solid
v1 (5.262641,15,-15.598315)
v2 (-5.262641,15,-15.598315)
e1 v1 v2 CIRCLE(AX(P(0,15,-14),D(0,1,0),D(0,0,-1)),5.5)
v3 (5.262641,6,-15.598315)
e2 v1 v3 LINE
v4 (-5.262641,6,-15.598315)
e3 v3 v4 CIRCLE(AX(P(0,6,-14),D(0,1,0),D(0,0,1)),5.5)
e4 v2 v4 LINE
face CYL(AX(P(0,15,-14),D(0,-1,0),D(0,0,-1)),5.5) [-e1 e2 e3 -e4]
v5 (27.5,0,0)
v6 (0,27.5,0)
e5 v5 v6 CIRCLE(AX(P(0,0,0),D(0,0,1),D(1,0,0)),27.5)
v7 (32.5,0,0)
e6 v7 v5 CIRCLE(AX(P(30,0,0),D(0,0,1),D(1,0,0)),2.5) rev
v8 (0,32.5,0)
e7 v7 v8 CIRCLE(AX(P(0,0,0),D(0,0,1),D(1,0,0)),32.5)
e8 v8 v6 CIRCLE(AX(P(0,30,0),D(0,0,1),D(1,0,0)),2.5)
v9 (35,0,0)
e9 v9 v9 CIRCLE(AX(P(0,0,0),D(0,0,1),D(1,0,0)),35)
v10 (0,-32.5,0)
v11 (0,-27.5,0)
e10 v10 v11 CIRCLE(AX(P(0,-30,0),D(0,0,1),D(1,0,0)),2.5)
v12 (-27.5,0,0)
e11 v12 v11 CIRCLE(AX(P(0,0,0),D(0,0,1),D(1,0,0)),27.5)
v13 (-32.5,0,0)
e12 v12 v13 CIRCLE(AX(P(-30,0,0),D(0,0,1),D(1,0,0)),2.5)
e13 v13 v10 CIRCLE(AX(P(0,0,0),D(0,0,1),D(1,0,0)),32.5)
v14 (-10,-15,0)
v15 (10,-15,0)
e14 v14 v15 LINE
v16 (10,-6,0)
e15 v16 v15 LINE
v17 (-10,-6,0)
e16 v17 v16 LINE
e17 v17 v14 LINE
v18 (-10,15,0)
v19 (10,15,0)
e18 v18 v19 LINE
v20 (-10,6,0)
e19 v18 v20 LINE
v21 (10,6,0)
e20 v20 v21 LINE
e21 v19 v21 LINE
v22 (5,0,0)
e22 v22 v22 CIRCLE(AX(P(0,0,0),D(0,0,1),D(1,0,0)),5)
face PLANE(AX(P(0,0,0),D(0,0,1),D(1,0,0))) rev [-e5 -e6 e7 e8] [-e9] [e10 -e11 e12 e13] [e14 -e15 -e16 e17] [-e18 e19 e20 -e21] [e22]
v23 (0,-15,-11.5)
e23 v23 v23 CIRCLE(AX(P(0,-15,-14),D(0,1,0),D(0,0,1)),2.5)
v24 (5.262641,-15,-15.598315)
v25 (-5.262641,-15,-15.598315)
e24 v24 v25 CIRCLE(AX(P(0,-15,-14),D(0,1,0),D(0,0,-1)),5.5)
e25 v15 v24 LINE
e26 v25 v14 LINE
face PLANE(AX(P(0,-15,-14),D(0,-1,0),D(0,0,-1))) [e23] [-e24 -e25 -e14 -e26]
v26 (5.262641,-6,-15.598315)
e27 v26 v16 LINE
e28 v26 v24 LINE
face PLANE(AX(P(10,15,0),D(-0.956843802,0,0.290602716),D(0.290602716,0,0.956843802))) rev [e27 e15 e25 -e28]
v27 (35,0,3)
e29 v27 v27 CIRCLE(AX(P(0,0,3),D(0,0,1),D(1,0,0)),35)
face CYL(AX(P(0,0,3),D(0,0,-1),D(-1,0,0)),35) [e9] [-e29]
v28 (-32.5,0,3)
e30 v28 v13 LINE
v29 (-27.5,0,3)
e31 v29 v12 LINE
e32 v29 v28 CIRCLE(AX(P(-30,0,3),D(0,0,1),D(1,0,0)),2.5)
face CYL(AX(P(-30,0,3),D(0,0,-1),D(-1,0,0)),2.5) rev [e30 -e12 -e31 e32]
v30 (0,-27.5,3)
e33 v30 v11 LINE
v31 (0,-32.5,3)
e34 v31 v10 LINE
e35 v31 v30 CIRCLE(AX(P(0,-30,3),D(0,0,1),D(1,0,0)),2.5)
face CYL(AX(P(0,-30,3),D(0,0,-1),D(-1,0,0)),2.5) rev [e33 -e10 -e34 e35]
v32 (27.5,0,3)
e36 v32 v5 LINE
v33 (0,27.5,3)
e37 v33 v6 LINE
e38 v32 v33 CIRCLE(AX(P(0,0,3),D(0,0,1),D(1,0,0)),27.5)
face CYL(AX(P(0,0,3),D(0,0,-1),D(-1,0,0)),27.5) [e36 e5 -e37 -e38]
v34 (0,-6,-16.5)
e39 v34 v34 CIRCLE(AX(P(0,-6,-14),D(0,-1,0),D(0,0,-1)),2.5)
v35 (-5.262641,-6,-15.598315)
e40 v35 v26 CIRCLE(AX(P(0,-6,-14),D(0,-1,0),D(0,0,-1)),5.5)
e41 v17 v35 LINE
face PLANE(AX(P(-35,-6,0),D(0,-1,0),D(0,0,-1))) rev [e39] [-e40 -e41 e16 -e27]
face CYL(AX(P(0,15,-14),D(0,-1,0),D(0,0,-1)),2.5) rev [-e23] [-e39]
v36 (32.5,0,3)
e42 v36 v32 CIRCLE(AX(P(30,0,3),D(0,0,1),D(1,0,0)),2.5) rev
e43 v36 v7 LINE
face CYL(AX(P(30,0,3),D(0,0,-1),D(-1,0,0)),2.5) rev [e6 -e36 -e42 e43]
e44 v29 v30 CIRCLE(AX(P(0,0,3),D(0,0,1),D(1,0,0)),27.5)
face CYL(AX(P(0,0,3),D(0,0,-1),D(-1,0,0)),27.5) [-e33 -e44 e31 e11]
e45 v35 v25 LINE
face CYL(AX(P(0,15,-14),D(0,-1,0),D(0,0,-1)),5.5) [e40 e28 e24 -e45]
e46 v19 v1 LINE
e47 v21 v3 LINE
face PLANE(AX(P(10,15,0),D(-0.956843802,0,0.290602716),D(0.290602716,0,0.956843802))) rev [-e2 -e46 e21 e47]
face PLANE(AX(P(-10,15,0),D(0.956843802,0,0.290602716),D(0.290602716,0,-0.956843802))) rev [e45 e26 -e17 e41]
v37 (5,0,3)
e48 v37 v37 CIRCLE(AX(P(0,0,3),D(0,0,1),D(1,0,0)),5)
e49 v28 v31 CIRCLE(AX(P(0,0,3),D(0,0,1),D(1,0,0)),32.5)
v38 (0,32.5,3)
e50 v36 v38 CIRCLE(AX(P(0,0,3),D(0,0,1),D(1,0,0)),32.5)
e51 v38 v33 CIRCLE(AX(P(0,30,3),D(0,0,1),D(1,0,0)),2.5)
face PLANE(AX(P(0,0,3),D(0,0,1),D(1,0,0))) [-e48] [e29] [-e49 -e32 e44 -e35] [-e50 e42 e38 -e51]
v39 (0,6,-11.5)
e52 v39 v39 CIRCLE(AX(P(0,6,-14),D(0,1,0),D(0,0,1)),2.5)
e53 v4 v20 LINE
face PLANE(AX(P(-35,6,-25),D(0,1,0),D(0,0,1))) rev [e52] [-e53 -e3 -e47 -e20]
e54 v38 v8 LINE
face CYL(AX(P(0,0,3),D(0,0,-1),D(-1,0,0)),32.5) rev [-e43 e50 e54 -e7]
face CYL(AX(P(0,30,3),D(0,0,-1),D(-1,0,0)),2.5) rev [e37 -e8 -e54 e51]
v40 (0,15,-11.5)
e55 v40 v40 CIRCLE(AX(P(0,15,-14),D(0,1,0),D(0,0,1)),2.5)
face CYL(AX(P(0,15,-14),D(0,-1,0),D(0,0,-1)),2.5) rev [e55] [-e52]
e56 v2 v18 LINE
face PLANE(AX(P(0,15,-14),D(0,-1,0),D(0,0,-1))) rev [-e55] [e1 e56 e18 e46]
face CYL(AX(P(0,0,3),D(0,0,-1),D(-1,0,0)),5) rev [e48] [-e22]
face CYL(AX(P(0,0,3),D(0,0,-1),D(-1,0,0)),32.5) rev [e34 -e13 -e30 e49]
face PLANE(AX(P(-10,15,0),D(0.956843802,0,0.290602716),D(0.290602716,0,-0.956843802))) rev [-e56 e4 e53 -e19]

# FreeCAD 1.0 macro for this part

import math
import FreeCAD as App
import Part
import Sketcher
Q = App.Units.Quantity

doc = App.newDocument("Part")
params = doc.addObject("Spreadsheet::Sheet", "Params")
for row, (alias, value) in enumerate([
    ("sketch1_diameter", "5 mm"),
    ("sketch1_radius", "5.5 mm"),
    ("sketch1_width", "20 mm"),
    ("pad1_length", "30 mm"),
    ("sketch2_diameter", "70 mm"),
    ("sketch2_diameter2", "10 mm"),
    ("sketch2_radius", "27.5 mm"),
    ("sketch2_radius2", "2.5 mm"),
    ("pad2_length", "3 mm"),
    ("sketch3_width", "12 mm"),
    ("sketch3_height", "25 mm"),
], start=1):
    params.set(f"A{row}", alias)
    params.set(f"B{row}", "=" + value)
    params.setAlias(f"B{row}", alias)

body = doc.addObject("PartDesign::Body", "Body")

sketch1 = doc.addObject("Sketcher::SketchObject", "Sketch")
body.addObject(sketch1)
sketch1.AttachmentSupport = (doc.XZ_Plane, [""])
sketch1.MapMode = "FlatFace"
sketch1.addGeometry(Part.LineSegment(App.Vector(-10, 0, 0), App.Vector(10, 0, 0)), False)
sketch1.addGeometry(Part.LineSegment(App.Vector(10, 0, 0), App.Vector(5.3, -15.6, 0)), False)
sketch1.addGeometry(Part.ArcOfCircle(Part.Circle(App.Vector(0, -14, 0), App.Vector(0, 0, 1), 5.5), math.radians(-163), math.radians(-17)), False)
sketch1.addGeometry(Part.LineSegment(App.Vector(-5.3, -15.6, 0), App.Vector(-10, 0, 0)), False)
sketch1.addGeometry(Part.Circle(App.Vector(0, -14, 0), App.Vector(0, 0, 1), 2.5), False)
sketch1.addConstraint(Sketcher.Constraint("Coincident", 0, 2, 1, 1))
sketch1.addConstraint(Sketcher.Constraint("Tangent", 1, 2, 2, 2))
sketch1.addConstraint(Sketcher.Constraint("Tangent", 2, 1, 3, 1))
sketch1.addConstraint(Sketcher.Constraint("Coincident", 3, 2, 0, 1))
sketch1.addConstraint(Sketcher.Constraint("Horizontal", 0))
sketch1.addConstraint(Sketcher.Constraint("Coincident", 4, 3, 2, 3))
sketch1.addConstraint(Sketcher.Constraint("Symmetric", 0, 2, 3, 2, -1, 1))
sketch1.addConstraint(Sketcher.Constraint("PointOnObject", 2, 3, -2))
sketch1.addConstraint(Sketcher.Constraint("Diameter", 4, Q("5 mm")))
sketch1.addConstraint(Sketcher.Constraint("Radius", 2, Q("5.5 mm")))
sketch1.addConstraint(Sketcher.Constraint("DistanceX", 0, 1, 0, 2, Q("20 mm")))
sketch1.addConstraint(Sketcher.Constraint("DistanceY", 2, 3, -1, 1, Q("14 mm")))
sketch1.setExpression("Constraints[8]", "Params.sketch1_diameter")
sketch1.setExpression("Constraints[9]", "Params.sketch1_radius")
sketch1.setExpression("Constraints[10]", "Params.sketch1_width")
pad1 = doc.addObject("PartDesign::Pad", "Pad")
body.addObject(pad1)
pad1.Profile = sketch1
pad1.setExpression("Length", "Params.pad1_length")
pad1.Midplane = True

sketch2 = doc.addObject("Sketcher::SketchObject", "Sketch001")
body.addObject(sketch2)
sketch2.AttachmentSupport = (doc.XY_Plane, [""])
sketch2.MapMode = "FlatFace"
sketch2.addGeometry(Part.Circle(App.Vector(0, 0, 0), App.Vector(0, 0, 1), 35), False)
sketch2.addGeometry(Part.ArcOfCircle(Part.Circle(App.Vector(0, 0, 0), App.Vector(0, 0, 1), 27.5), math.radians(180), math.radians(270)), False)
sketch2.addGeometry(Part.ArcOfCircle(Part.Circle(App.Vector(0, -30, 0), App.Vector(0, 0, 1), 2.5), math.radians(-90), math.radians(90)), False)
sketch2.addGeometry(Part.ArcOfCircle(Part.Circle(App.Vector(0, 0, 0), App.Vector(0, 0, 1), 32.5), math.radians(180), math.radians(270)), False)
sketch2.addGeometry(Part.ArcOfCircle(Part.Circle(App.Vector(-30, 0, 0), App.Vector(0, 0, 1), 2.5), math.radians(0), math.radians(180)), False)
sketch2.addGeometry(Part.Circle(App.Vector(0, 0, 0), App.Vector(0, 0, 1), 5), False)
sketch2.addGeometry(Part.ArcOfCircle(Part.Circle(App.Vector(0, 0, 0), App.Vector(0, 0, 1), 32.5), math.radians(0), math.radians(90)), False)
sketch2.addGeometry(Part.ArcOfCircle(Part.Circle(App.Vector(30, 0, 0), App.Vector(0, 0, 1), 2.5), math.radians(180), math.radians(360)), False)
sketch2.addGeometry(Part.ArcOfCircle(Part.Circle(App.Vector(0, 0, 0), App.Vector(0, 0, 1), 27.5), math.radians(0), math.radians(90)), False)
sketch2.addGeometry(Part.ArcOfCircle(Part.Circle(App.Vector(0, 30, 0), App.Vector(0, 0, 1), 2.5), math.radians(90), math.radians(270)), False)
sketch2.addConstraint(Sketcher.Constraint("Tangent", 1, 2, 2, 2))
sketch2.addConstraint(Sketcher.Constraint("Tangent", 2, 1, 3, 2))
sketch2.addConstraint(Sketcher.Constraint("Tangent", 3, 1, 4, 2))
sketch2.addConstraint(Sketcher.Constraint("Tangent", 4, 1, 1, 1))
sketch2.addConstraint(Sketcher.Constraint("Tangent", 6, 1, 7, 2))
sketch2.addConstraint(Sketcher.Constraint("Tangent", 7, 1, 8, 1))
sketch2.addConstraint(Sketcher.Constraint("Tangent", 8, 2, 9, 2))
sketch2.addConstraint(Sketcher.Constraint("Tangent", 9, 1, 6, 2))
sketch2.addConstraint(Sketcher.Constraint("Coincident", 0, 3, -1, 1))
sketch2.addConstraint(Sketcher.Constraint("Coincident", 1, 3, -1, 1))
sketch2.addConstraint(Sketcher.Constraint("Coincident", 3, 3, -1, 1))
sketch2.addConstraint(Sketcher.Constraint("Coincident", 5, 3, -1, 1))
sketch2.addConstraint(Sketcher.Constraint("Coincident", 6, 3, -1, 1))
sketch2.addConstraint(Sketcher.Constraint("Coincident", 8, 3, -1, 1))
sketch2.addConstraint(Sketcher.Constraint("Equal", 3, 6))
sketch2.addConstraint(Sketcher.Constraint("Equal", 4, 7))
sketch2.addConstraint(Sketcher.Constraint("PointOnObject", 2, 3, -2))
sketch2.addConstraint(Sketcher.Constraint("PointOnObject", 4, 3, -1))
sketch2.addConstraint(Sketcher.Constraint("PointOnObject", 7, 3, -1))
sketch2.addConstraint(Sketcher.Constraint("PointOnObject", 9, 3, -2))
sketch2.addConstraint(Sketcher.Constraint("Diameter", 0, Q("70 mm")))
sketch2.addConstraint(Sketcher.Constraint("Diameter", 5, Q("10 mm")))
sketch2.addConstraint(Sketcher.Constraint("Radius", 1, Q("27.5 mm")))
sketch2.addConstraint(Sketcher.Constraint("Radius", 2, Q("2.5 mm")))
sketch2.setExpression("Constraints[20]", "Params.sketch2_diameter")
sketch2.setExpression("Constraints[21]", "Params.sketch2_diameter2")
sketch2.setExpression("Constraints[22]", "Params.sketch2_radius")
sketch2.setExpression("Constraints[23]", "Params.sketch2_radius2")
pad2 = doc.addObject("PartDesign::Pad", "Pad001")
body.addObject(pad2)
pad2.Profile = sketch2
pad2.setExpression("Length", "Params.pad2_length")

sketch3 = doc.addObject("Sketcher::SketchObject", "Sketch002")
body.addObject(sketch3)
sketch3.AttachmentSupport = (doc.YZ_Plane, [""])
sketch3.MapMode = "FlatFace"
sketch3.addGeometry(Part.LineSegment(App.Vector(6, 0, 0), App.Vector(-6, 0, 0)), False)
sketch3.addGeometry(Part.LineSegment(App.Vector(-6, 0, 0), App.Vector(-6, -25, 0)), False)
sketch3.addGeometry(Part.LineSegment(App.Vector(-6, -25, 0), App.Vector(6, -25, 0)), False)
sketch3.addGeometry(Part.LineSegment(App.Vector(6, -25, 0), App.Vector(6, 0, 0)), False)
sketch3.addConstraint(Sketcher.Constraint("Coincident", 0, 2, 1, 1))
sketch3.addConstraint(Sketcher.Constraint("Coincident", 1, 2, 2, 1))
sketch3.addConstraint(Sketcher.Constraint("Coincident", 2, 2, 3, 1))
sketch3.addConstraint(Sketcher.Constraint("Coincident", 3, 2, 0, 1))
sketch3.addConstraint(Sketcher.Constraint("Horizontal", 0))
sketch3.addConstraint(Sketcher.Constraint("Vertical", 1))
sketch3.addConstraint(Sketcher.Constraint("Horizontal", 2))
sketch3.addConstraint(Sketcher.Constraint("Vertical", 3))
sketch3.addConstraint(Sketcher.Constraint("Symmetric", 0, 2, 3, 2, -1, 1))
sketch3.addConstraint(Sketcher.Constraint("DistanceX", 0, 2, 0, 1, Q("12 mm")))
sketch3.addConstraint(Sketcher.Constraint("DistanceY", 1, 2, 1, 1, Q("25 mm")))
sketch3.setExpression("Constraints[9]", "Params.sketch3_width")
sketch3.setExpression("Constraints[10]", "Params.sketch3_height")
pocket1 = doc.addObject("PartDesign::Pocket", "Pocket")
body.addObject(pocket1)
pocket1.Profile = sketch3
pocket1.Type = "ThroughAll"
pocket1.Midplane = True

doc.recompute()
